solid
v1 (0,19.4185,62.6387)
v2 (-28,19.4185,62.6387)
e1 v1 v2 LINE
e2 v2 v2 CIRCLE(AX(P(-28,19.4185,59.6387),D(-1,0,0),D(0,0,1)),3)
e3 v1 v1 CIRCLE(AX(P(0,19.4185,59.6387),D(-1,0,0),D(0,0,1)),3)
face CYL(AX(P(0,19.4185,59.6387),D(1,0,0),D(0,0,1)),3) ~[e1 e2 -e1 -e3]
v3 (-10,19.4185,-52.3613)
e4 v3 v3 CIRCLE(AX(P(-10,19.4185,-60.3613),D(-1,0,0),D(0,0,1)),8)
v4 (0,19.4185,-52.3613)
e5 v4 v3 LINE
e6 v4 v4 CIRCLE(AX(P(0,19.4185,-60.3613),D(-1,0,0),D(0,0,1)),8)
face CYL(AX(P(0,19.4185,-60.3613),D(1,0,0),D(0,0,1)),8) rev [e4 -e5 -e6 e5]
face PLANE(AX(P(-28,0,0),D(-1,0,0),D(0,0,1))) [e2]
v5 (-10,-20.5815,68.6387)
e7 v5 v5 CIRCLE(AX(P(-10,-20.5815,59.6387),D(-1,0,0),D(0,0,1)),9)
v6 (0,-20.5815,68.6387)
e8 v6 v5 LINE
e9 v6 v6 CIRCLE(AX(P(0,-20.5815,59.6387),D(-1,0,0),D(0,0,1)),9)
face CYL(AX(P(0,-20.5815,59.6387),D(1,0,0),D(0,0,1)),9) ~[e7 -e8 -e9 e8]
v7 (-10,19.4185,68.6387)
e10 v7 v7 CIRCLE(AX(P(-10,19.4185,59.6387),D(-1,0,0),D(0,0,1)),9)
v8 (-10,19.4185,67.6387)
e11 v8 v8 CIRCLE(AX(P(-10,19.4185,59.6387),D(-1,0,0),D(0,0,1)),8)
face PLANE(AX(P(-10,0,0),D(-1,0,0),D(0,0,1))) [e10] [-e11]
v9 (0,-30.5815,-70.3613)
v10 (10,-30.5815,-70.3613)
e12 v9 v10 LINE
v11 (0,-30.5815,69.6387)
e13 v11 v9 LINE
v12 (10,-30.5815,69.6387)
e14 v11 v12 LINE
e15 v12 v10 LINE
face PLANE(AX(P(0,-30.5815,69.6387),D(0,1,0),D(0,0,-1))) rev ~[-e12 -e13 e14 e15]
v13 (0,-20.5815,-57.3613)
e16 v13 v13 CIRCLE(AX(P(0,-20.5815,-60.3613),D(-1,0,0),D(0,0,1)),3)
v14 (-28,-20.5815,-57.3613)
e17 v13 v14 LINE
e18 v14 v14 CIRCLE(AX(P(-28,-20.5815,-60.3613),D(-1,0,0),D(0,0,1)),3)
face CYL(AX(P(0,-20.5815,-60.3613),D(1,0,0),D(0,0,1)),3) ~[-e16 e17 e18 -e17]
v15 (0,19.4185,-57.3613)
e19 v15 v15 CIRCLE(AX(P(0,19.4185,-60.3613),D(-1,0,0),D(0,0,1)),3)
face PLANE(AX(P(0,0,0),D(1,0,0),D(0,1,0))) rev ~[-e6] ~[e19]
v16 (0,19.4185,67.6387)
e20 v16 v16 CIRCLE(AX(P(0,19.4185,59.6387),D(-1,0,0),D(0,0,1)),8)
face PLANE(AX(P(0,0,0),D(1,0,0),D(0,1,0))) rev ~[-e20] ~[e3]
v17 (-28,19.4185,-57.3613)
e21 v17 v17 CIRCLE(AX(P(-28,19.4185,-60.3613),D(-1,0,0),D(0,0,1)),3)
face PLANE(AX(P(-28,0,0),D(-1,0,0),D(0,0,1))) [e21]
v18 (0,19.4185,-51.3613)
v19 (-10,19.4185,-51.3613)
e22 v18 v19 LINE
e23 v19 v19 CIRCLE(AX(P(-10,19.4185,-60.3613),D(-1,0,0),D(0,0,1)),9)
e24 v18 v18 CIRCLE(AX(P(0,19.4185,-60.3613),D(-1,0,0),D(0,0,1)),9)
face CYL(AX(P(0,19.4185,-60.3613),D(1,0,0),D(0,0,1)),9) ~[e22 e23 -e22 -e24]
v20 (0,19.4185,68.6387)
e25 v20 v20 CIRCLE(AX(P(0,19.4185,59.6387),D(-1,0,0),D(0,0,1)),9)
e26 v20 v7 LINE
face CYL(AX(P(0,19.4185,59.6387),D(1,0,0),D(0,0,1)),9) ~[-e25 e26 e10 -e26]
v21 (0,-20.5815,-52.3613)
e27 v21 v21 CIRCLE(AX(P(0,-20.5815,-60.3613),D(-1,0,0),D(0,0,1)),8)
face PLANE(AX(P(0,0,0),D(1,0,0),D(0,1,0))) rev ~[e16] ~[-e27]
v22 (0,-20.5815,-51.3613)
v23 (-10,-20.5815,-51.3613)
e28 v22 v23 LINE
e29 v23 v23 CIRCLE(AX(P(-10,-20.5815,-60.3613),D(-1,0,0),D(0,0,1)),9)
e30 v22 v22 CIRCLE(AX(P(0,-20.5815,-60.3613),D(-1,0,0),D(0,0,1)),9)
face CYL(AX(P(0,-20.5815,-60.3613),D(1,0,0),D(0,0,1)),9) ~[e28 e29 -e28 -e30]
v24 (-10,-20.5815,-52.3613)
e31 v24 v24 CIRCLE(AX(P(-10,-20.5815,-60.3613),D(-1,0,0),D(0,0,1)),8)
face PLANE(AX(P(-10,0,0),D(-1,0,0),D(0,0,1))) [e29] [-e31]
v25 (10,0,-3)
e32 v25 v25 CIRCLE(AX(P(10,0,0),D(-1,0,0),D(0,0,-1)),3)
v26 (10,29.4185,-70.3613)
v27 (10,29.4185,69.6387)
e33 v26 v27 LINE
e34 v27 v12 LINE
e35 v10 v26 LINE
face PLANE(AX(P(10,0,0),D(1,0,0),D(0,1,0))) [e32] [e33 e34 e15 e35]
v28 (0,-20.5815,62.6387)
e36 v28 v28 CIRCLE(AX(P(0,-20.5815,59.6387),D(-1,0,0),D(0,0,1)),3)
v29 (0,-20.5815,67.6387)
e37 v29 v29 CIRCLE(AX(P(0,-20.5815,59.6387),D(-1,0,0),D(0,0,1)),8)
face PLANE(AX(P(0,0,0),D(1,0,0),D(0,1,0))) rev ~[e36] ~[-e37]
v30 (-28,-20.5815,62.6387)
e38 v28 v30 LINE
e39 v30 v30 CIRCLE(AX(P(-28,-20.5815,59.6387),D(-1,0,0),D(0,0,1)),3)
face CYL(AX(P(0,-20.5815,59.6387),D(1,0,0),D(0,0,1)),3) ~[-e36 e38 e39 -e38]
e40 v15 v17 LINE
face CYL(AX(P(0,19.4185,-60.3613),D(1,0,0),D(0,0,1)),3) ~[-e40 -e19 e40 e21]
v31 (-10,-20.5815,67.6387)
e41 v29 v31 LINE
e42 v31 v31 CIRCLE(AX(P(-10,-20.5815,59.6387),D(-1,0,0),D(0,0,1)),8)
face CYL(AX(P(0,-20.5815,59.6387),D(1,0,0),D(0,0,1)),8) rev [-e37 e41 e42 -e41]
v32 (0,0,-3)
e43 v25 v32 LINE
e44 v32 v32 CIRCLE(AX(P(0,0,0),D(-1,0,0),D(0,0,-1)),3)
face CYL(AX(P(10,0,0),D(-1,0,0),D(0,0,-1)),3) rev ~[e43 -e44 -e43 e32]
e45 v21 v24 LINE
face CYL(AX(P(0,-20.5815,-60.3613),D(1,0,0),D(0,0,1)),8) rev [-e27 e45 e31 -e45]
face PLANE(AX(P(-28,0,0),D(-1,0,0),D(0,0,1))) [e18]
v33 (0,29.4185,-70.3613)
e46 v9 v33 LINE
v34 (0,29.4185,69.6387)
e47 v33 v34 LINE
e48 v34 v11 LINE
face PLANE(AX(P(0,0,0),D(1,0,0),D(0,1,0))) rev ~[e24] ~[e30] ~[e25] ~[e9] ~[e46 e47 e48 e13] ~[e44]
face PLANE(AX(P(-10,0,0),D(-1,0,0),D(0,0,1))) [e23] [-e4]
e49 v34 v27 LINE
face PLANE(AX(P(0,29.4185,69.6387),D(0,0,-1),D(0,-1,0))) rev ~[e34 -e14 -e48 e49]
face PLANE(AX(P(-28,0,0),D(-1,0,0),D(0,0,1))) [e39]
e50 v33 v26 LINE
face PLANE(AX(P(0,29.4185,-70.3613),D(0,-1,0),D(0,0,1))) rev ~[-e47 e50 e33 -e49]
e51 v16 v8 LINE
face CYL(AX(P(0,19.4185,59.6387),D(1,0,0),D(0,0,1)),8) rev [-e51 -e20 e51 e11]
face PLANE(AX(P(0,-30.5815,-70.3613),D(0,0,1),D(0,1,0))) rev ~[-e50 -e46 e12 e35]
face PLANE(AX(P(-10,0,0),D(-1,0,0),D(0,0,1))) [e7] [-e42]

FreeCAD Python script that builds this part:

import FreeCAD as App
import Part
import Sketcher

V = App.Vector


def add_polygon(sketch, points):
    """Adds a closed chain of lines whose ends are joined by coincident constraints."""
    first, n = sketch.GeometryCount, len(points)
    for a, b in zip(points, points[1:] + points[:1]):
        sketch.addGeometry(Part.LineSegment(App.Vector(*a, 0), App.Vector(*b, 0)), False)
    for i in range(n):
        sketch.addConstraint(Sketcher.Constraint("Coincident", first + i, 2, first + (i + 1) % n, 1))

doc = App.newDocument("Part")
body = doc.addObject("PartDesign::Body", "Body")

# Sketch on YZ plane
sketch1 = body.newObject("Sketcher::SketchObject", "Sketch")
sketch1.AttachmentSupport = (doc.getObject("YZ_Plane"), [""])
sketch1.MapMode = "FlatFace"
add_polygon(sketch1, [(29.4185, -70.3613), (29.4185, 69.6387), (-30.5815, 69.6387), (-30.5815, -70.3613)])  # lines 0-3
sketch1.addConstraint([
    Sketcher.Constraint("Vertical", 0),
    Sketcher.Constraint("Horizontal", 1),
    Sketcher.Constraint("Vertical", 2),
    Sketcher.Constraint("Horizontal", 3),
    Sketcher.Constraint("DistanceX", 1, 2, 1, 1, 60.0),
    Sketcher.Constraint("DistanceY", 0, 1, 0, 2, 140.0),
    Sketcher.Constraint("DistanceX", -1, 1, 0, 2, 29.4185),
    Sketcher.Constraint("DistanceY", -1, 1, 0, 2, 69.6387),
])
pad1 = body.newObject("PartDesign::Pad", "Pad")
pad1.Profile = sketch1
pad1.Length = 10

# Sketch on YZ plane
sketch2 = body.newObject("Sketcher::SketchObject", "Sketch001")
sketch2.AttachmentSupport = (doc.getObject("YZ_Plane"), [""])
sketch2.MapMode = "FlatFace"
sketch2.addGeometry([
    Part.Circle(V(19.4185, -60.3613, 0), V(0, 0, 1), 9),  # 0
    Part.Circle(V(19.4185, -60.3613, 0), V(0, 0, 1), 8),  # 1
    Part.Circle(V(-20.5815, -60.3613, 0), V(0, 0, 1), 9),  # 2
    Part.Circle(V(-20.5815, -60.3613, 0), V(0, 0, 1), 8),  # 3
    Part.Circle(V(-20.5815, 59.6387, 0), V(0, 0, 1), 9),  # 4
    Part.Circle(V(-20.5815, 59.6387, 0), V(0, 0, 1), 8),  # 5
    Part.Circle(V(19.4185, 59.6387, 0), V(0, 0, 1), 9),  # 6
    Part.Circle(V(19.4185, 59.6387, 0), V(0, 0, 1), 8),  # 7
], False)
sketch2.addConstraint([
    Sketcher.Constraint("Coincident", 1, 3, 0, 3),
    Sketcher.Constraint("Coincident", 3, 3, 2, 3),
    Sketcher.Constraint("Coincident", 5, 3, 4, 3),
    Sketcher.Constraint("Coincident", 7, 3, 6, 3),
    Sketcher.Constraint("Equal", 0, 2),
    Sketcher.Constraint("Equal", 1, 3),
    Sketcher.Constraint("Equal", 2, 4),
    Sketcher.Constraint("Equal", 3, 5),
    Sketcher.Constraint("Equal", 4, 6),
    Sketcher.Constraint("Equal", 5, 7),
    Sketcher.Constraint("Horizontal", 1, 3, 2, 3),
    Sketcher.Constraint("Horizontal", 5, 3, 6, 3),
    Sketcher.Constraint("Vertical", 3, 3, 4, 3),
    Sketcher.Constraint("Vertical", 1, 3, 6, 3),
    Sketcher.Constraint("Diameter", 0, 18.0),
    Sketcher.Constraint("Diameter", 1, 16.0),
    Sketcher.Constraint("DistanceX", 2, 3, 0, 3, 40.0),
    Sketcher.Constraint("DistanceY", 2, 3, 4, 3, 120.0),
    Sketcher.Constraint("DistanceX", -1, 1, 0, 3, 19.4185),
    Sketcher.Constraint("DistanceY", 0, 3, -1, 1, 60.3613),
])
pad2 = body.newObject("PartDesign::Pad", "Pad001")
pad2.Profile = sketch2
pad2.Length = 10
pad2.Reversed = True

# Sketch on YZ plane
sketch3 = body.newObject("Sketcher::SketchObject", "Sketch002")
sketch3.AttachmentSupport = (doc.getObject("YZ_Plane"), [""])
sketch3.MapMode = "FlatFace"
sketch3.addGeometry([
    Part.Circle(V(19.4185, -60.3613, 0), V(0, 0, 1), 3),
    Part.Circle(V(19.4185, 59.6387, 0), V(0, 0, 1), 3),
    Part.Circle(V(-20.5815, 59.6387, 0), V(0, 0, 1), 3),
], False)
sketch3.addConstraint([
    Sketcher.Constraint("Equal", 0, 1),
    Sketcher.Constraint("Equal", 1, 2),
    Sketcher.Constraint("Horizontal", 1, 3, 2, 3),
    Sketcher.Constraint("Vertical", 0, 3, 1, 3),
    Sketcher.Constraint("Diameter", 0, 6.0),
    Sketcher.Constraint("DistanceY", 0, 3, 1, 3, 120.0),
    Sketcher.Constraint("DistanceX", 2, 3, 1, 3, 40.0),
    Sketcher.Constraint("DistanceX", -1, 1, 0, 3, 19.4185),
    Sketcher.Constraint("DistanceY", 0, 3, -1, 1, 60.3613),
])
pad3 = body.newObject("PartDesign::Pad", "Pad002")
pad3.Profile = sketch3
pad3.Length = 28
pad3.Reversed = True

# Sketch on YZ plane
sketch4 = body.newObject("Sketcher::SketchObject", "Sketch003")
sketch4.AttachmentSupport = (doc.getObject("YZ_Plane"), [""])
sketch4.MapMode = "FlatFace"
sketch4.addGeometry(Part.Circle(V(-20.5815, -60.3613, 0), V(0, 0, 1), 3), False)
sketch4.addConstraint([
    Sketcher.Constraint("Diameter", 0, 6.0),
    Sketcher.Constraint("DistanceX", 0, 3, -1, 1, 20.5815),
    Sketcher.Constraint("DistanceY", 0, 3, -1, 1, 60.3613),
])
pad4 = body.newObject("PartDesign::Pad", "Pad003")
pad4.Profile = sketch4
pad4.Length = 28
pad4.Reversed = True

# Sketch on YZ plane
sketch5 = body.newObject("Sketcher::SketchObject", "Sketch004")
sketch5.AttachmentSupport = (doc.getObject("YZ_Plane"), [""])
sketch5.MapMode = "FlatFace"
sketch5.AttachmentOffset = App.Placement(V(0, 0, 10), App.Rotation())
sketch5.addGeometry(Part.Circle(V(0, 0, 0), V(0, 0, 1), 3), False)
sketch5.addConstraint([
    Sketcher.Constraint("Coincident", 0, 3, -1, 1),
    Sketcher.Constraint("Diameter", 0, 6.0),
])
doc.recompute()
hole = body.newObject("PartDesign::Hole", "Hole")
hole.Profile = sketch5
hole.ThreadType = "None"
hole.Diameter = 6
hole.DepthType = "Dimension"
hole.Depth = 10
hole.DrillPoint = "Flat"

doc.recompute()
